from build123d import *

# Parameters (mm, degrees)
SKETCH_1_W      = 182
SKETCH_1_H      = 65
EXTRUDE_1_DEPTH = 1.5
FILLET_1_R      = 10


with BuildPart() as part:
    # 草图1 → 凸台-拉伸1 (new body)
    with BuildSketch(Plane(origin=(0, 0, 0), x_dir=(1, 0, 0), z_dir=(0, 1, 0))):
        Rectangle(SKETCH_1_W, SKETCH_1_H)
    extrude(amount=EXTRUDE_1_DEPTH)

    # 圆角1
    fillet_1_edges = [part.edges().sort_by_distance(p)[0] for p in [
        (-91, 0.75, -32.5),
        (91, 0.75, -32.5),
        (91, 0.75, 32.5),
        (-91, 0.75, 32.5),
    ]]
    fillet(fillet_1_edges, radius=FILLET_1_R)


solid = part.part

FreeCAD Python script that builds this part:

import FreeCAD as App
import Part
import Sketcher
from FreeCAD import Vector


def edges_at(feature, points):
    """Names of the edges that pass closest to the given points."""
    edges = feature.Shape.Edges
    near = lambda p: min(range(len(edges)), key=lambda i: edges[i].distToShape(Part.Vertex(*p))[0])
    return sorted({f"Edge{near(p) + 1}" for p in points})


def add_polygon(sketch, points):
    """Adds a closed chain of lines whose ends are joined by coincident constraints."""
    first, n = sketch.GeometryCount, len(points)
    for a, b in zip(points, points[1:] + points[:1]):
        sketch.addGeometry(Part.LineSegment(App.Vector(*a, 0), App.Vector(*b, 0)), False)
    for i in range(n):
        sketch.addConstraint(Sketcher.Constraint("Coincident", first + i, 2, first + (i + 1) % n, 1))

doc = App.newDocument("Part")
body = doc.addObject("PartDesign::Body", "Body")

# Sketch on XZ plane
sketch1 = body.newObject("Sketcher::SketchObject", "Sketch")
sketch1.AttachmentSupport = (doc.getObject("XZ_Plane"), [""])
sketch1.MapMode = "FlatFace"
add_polygon(sketch1, [(-91, -32), (-91, 32), (91, 32), (91, -32)])  # lines 0-3
sketch1.addConstraint([
    Sketcher.Constraint("Vertical", 0),
    Sketcher.Constraint("Horizontal", 1),
    Sketcher.Constraint("Vertical", 2),
    Sketcher.Constraint("Horizontal", 3),
    Sketcher.Constraint("Symmetric", 0, 2, 2, 2, -1, 1),
    Sketcher.Constraint("DistanceX", 1, 1, 1, 2, 182.0),
    Sketcher.Constraint("DistanceY", 0, 1, 0, 2, 65.0),
])
pad1 = body.newObject("PartDesign::Pad", "Pad")
pad1.Profile = sketch1
pad1.Length = 1.5
pad1.Reversed = True
doc.recompute()

fillet = body.newObject("PartDesign::Fillet", "Fillet")
fillet.Base = (pad1, edges_at(pad1, [
    (-91, 0.75, -32.5),
    (91, 0.75, -32.5),
    (91, 0.75, 32.5),
    (-91, 0.75, 32.5),
]))
fillet.Radius = 10

doc.recompute()
